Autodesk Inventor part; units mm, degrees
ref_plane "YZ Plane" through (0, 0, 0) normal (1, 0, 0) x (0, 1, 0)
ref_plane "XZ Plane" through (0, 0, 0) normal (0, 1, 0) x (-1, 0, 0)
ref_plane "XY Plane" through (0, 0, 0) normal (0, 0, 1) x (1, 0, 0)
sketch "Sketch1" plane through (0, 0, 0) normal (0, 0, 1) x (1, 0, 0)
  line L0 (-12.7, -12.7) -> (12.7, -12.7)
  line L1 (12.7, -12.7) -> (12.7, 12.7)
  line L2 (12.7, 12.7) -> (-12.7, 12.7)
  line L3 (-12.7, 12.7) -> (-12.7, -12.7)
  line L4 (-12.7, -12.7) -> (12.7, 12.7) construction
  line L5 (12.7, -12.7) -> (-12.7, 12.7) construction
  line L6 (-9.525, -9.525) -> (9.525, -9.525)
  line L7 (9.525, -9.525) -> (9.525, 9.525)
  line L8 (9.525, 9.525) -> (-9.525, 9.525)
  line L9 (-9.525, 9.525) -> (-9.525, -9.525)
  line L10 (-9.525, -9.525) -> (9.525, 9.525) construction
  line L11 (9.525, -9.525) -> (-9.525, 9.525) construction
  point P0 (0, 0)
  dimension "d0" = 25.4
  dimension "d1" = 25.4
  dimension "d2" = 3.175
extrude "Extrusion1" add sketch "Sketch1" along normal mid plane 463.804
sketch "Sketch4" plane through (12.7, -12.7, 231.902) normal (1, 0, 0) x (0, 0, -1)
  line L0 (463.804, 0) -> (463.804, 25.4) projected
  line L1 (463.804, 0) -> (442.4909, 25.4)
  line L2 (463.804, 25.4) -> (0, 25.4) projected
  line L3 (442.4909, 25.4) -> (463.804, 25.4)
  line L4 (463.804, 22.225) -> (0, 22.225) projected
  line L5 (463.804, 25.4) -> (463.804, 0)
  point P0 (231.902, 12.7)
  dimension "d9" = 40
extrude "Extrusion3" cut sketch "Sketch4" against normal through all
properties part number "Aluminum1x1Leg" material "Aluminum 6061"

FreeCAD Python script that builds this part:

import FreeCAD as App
import Part
import Sketcher

V = App.Vector
Q = App.Units.Quantity


def add_polygon(sketch, points):
    """Adds a closed chain of lines whose ends are joined by coincident constraints."""
    first, n = sketch.GeometryCount, len(points)
    for a, b in zip(points, points[1:] + points[:1]):
        sketch.addGeometry(Part.LineSegment(App.Vector(*a, 0), App.Vector(*b, 0)), False)
    for i in range(n):
        sketch.addConstraint(Sketcher.Constraint("Coincident", first + i, 2, first + (i + 1) % n, 1))

doc = App.newDocument("Part")
body = doc.addObject("PartDesign::Body", "Body")

sketch1 = body.newObject("Sketcher::SketchObject", "Sketch")
sketch1.AttachmentSupport = (doc.getObject("XY_Plane"), [""])
sketch1.MapMode = "FlatFace"
add_polygon(sketch1, [(-13, 13), (-13, -13), (13, -13), (13, 13)])
add_polygon(sketch1, [(10, -10), (-10, -10), (-10, 10), (10, 10)])
sketch1.addConstraint([
    Sketcher.Constraint("Vertical", 0),
    Sketcher.Constraint("Horizontal", 1),
    Sketcher.Constraint("Vertical", 2),
    Sketcher.Constraint("Horizontal", 3),
    Sketcher.Constraint("Horizontal", 4),
    Sketcher.Constraint("Vertical", 5),
    Sketcher.Constraint("Horizontal", 6),
    Sketcher.Constraint("Vertical", 7),
    Sketcher.Constraint("Symmetric", 0, 2, 2, 2, -1, 1),
    Sketcher.Constraint("Symmetric", 4, 2, 6, 2, -1, 1),
    Sketcher.Constraint("Equal", 3, 0),
    Sketcher.Constraint("Equal", 6, 5),
    Sketcher.Constraint("DistanceX", 1, 1, 1, 2, Q("1 in")),
    Sketcher.Constraint("DistanceX", 0, 2, 4, 2, Q("0.125 in")),
])
pad1 = body.newObject("PartDesign::Pad", "Pad")
pad1.Profile = sketch1
pad1.Length = Q("18.26 in")
pad1.Midplane = True

sketch2 = body.newObject("Sketcher::SketchObject", "Sketch001")
sketch2.AttachmentSupport = (doc.getObject("YZ_Plane"), [""])
sketch2.MapMode = "FlatFace"
sketch2.AttachmentOffset = App.Placement(V(0, 0, 0.5 * 25.4), App.Rotation())
add_polygon(sketch2, [(-13, -232), (13, -232), (13, -211)])
sketch2.addConstraint([
    Sketcher.Constraint("Horizontal", 0),
    Sketcher.Constraint("Vertical", 1),
    Sketcher.Constraint("DistanceX", 0, 1, 0, 2, Q("1 in")),
    Sketcher.Constraint("Angle", 2, Q("-140 deg")),
    Sketcher.Constraint("DistanceX", -1, 1, 0, 2, Q("0.5 in")),
    Sketcher.Constraint("DistanceY", 0, 2, -1, 1, Q("9.13 in")),
])
pocket1 = body.newObject("PartDesign::Pocket", "Pocket")
pocket1.Profile = sketch2
pocket1.Type = "ThroughAll"

doc.recompute()
